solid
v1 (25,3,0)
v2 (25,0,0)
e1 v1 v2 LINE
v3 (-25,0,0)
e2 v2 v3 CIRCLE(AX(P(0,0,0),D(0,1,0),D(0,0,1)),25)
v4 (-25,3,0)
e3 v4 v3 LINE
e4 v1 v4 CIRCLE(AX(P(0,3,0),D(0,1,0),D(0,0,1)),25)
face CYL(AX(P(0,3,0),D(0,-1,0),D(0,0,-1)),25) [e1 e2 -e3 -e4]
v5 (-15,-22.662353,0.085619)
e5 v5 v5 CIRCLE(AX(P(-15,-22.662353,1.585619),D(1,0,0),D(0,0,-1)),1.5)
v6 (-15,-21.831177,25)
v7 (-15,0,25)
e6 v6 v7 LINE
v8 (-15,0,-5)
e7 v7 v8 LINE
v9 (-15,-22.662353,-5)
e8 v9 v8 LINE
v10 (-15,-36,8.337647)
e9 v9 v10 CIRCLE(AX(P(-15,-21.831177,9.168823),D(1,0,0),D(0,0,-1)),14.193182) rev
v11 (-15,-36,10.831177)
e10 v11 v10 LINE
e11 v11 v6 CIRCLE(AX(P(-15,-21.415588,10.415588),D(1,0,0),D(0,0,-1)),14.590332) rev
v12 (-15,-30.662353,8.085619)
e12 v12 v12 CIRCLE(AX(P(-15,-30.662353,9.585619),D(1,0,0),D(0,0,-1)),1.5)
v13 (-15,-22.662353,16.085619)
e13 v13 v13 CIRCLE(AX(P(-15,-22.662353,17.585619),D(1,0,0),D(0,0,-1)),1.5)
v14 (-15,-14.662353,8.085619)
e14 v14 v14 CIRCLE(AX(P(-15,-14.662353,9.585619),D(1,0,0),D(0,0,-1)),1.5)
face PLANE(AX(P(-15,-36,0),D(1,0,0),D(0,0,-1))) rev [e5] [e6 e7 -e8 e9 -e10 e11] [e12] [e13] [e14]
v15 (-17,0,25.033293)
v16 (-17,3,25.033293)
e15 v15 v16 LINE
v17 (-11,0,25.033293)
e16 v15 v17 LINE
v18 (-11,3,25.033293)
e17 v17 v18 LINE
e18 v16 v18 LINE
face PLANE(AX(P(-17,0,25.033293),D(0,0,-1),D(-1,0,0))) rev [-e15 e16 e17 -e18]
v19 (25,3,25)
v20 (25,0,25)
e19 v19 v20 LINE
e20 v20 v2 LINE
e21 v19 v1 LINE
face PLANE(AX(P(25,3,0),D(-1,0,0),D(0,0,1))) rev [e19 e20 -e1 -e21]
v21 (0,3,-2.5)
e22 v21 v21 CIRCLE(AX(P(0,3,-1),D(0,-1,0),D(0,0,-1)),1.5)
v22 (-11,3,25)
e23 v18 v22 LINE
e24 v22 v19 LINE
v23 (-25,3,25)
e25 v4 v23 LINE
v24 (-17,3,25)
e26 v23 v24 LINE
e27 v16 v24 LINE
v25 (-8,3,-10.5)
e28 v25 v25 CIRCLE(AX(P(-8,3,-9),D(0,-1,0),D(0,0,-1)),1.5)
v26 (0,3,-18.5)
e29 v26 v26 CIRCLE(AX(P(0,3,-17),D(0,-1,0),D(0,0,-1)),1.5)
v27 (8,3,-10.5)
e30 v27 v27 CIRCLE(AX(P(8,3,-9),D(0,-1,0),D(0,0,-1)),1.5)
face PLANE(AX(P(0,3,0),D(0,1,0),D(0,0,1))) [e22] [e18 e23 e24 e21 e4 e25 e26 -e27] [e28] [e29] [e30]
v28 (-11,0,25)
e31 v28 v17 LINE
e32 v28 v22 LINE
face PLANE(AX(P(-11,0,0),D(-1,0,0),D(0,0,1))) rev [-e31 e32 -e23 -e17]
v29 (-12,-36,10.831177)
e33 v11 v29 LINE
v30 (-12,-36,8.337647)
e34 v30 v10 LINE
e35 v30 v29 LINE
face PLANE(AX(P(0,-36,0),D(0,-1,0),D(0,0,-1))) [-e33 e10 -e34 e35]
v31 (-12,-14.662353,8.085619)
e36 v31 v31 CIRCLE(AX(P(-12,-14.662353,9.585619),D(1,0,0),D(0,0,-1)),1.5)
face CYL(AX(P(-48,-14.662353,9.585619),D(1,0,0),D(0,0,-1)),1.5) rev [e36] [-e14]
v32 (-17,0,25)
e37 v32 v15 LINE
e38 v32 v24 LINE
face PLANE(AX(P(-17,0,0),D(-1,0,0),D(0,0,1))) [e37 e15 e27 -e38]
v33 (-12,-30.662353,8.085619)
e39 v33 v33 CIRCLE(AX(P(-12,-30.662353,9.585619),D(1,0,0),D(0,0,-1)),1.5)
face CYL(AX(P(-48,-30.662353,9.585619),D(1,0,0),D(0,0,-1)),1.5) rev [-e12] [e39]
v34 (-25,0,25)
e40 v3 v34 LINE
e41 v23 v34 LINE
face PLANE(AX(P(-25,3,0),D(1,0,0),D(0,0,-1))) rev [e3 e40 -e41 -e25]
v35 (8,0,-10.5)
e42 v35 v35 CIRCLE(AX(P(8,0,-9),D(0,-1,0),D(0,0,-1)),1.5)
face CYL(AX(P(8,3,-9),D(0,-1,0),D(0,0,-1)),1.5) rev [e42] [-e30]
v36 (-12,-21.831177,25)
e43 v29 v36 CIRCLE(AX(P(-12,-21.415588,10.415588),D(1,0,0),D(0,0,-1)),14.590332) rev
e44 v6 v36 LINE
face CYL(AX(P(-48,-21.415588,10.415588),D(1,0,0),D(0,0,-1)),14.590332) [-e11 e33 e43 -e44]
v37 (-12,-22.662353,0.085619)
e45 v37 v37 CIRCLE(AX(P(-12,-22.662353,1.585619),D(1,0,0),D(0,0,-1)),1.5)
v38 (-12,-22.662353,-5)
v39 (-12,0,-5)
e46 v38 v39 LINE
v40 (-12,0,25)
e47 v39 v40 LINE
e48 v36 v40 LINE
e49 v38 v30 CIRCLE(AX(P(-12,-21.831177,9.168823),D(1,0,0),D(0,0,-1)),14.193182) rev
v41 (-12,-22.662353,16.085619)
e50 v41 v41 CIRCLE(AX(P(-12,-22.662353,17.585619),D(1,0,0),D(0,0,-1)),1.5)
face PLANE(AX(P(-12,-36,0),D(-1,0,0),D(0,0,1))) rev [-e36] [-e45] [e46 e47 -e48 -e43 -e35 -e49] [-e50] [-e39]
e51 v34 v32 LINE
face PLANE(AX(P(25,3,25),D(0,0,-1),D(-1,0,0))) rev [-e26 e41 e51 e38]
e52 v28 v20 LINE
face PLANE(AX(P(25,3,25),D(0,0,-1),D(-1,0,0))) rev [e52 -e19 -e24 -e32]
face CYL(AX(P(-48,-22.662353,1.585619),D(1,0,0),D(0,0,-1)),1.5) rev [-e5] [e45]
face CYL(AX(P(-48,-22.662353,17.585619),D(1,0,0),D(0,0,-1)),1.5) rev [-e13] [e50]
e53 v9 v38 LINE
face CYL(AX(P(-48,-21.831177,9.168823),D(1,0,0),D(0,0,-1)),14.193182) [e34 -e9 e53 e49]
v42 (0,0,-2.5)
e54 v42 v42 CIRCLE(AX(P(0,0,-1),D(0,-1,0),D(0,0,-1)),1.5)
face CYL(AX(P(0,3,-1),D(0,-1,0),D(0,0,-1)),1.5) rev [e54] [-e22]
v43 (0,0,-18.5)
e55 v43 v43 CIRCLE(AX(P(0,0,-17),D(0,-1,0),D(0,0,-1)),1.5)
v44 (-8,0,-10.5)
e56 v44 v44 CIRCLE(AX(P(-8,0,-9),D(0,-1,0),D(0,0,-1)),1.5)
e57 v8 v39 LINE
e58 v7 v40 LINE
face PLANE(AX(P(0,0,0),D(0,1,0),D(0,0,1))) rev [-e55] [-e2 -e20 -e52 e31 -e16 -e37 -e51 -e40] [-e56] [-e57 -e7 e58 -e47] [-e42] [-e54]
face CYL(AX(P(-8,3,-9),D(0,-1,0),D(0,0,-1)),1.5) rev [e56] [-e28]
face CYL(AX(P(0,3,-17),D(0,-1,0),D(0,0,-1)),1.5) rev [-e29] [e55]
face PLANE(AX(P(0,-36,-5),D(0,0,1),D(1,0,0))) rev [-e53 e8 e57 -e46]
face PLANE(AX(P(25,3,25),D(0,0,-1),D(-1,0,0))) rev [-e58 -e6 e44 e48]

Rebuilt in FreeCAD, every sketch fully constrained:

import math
import FreeCAD as App
import Part
import Sketcher

V = App.Vector
Q = App.Units.Quantity


def add_polygon(sketch, points):
    """Adds a closed chain of lines whose ends are joined by coincident constraints."""
    first, n = sketch.GeometryCount, len(points)
    for a, b in zip(points, points[1:] + points[:1]):
        sketch.addGeometry(Part.LineSegment(App.Vector(*a, 0), App.Vector(*b, 0)), False)
    for i in range(n):
        sketch.addConstraint(Sketcher.Constraint("Coincident", first + i, 2, first + (i + 1) % n, 1))

doc = App.newDocument("Part")
params = doc.addObject("Spreadsheet::Sheet", "Params")
for row, (alias, value) in enumerate([
    ("sketch1_radius", "25 mm"),
    ("sketch1_height", "25 mm"),
    ("pad1_length", "3 mm"),
    ("sketch2_width", "4 mm"),
    ("sketch2_height", "25 mm"),
    ("pocket1_length", "3 mm"),
    ("sketch3_diameter", "3 mm"),
    ("pocket2_length", "3 mm"),
    ("sketch4_width", "3 mm"),
    ("pad2_length", "6 mm"),
    ("sketch5_width", "3 mm"),
    ("sketch5_height", "30 mm"),
    ("pad3_length", "36 mm"),
    ("sketch6_diameter", "3 mm"),
    ("pocket3_length", "36 mm"),
    ("sketch7_width", "3 mm"),
    ("pad4_length", "6 mm"),
], start=1):
    params.set(f"A{row}", alias)
    params.set(f"B{row}", "=" + value)
    params.setAlias(f"B{row}", alias)

body = doc.addObject("PartDesign::Body", "Body")

# Sketch on XZ plane
sketch1 = body.newObject("Sketcher::SketchObject", "Sketch")
sketch1.AttachmentSupport = (doc.getObject("XZ_Plane"), [""])
sketch1.MapMode = "FlatFace"
sketch1.addGeometry([
    Part.LineSegment(V(-25, 0, 0), V(-25, 25, 0)),
    Part.LineSegment(V(-25, 25, 0), V(25, 25, 0)),
    Part.LineSegment(V(25, 25, 0), V(25, 0, 0)),
    Part.ArcOfCircle(Part.Circle(V(0, 0, 0), V(0, 0, 1), 25), math.radians(180), math.radians(360)),
], False)
sketch1.addConstraint([
    Sketcher.Constraint("Coincident", 0, 2, 1, 1),
    Sketcher.Constraint("Coincident", 1, 2, 2, 1),
    Sketcher.Constraint("Tangent", 2, 2, 3, 2),
    Sketcher.Constraint("Tangent", 3, 1, 0, 1),
    Sketcher.Constraint("Vertical", 0),
    Sketcher.Constraint("Horizontal", 1),
    Sketcher.Constraint("Vertical", 2),
    Sketcher.Constraint("Coincident", 3, 3, -1, 1),
    Sketcher.Constraint("Radius", 3, Q("25 mm")),
    Sketcher.Constraint("DistanceY", 0, 1, 0, 2, Q("25 mm")),
])
sketch1.setExpression("Constraints[8]", "Params.sketch1_radius")
sketch1.setExpression("Constraints[9]", "Params.sketch1_height")
pad1 = body.newObject("PartDesign::Pad", "Pad")
pad1.Profile = sketch1
pad1.setExpression("Length", "Params.pad1_length")
pad1.Reversed = True

# Sketch on XZ plane
sketch2 = body.newObject("Sketcher::SketchObject", "Sketch001")
sketch2.AttachmentSupport = (doc.getObject("XZ_Plane"), [""])
sketch2.MapMode = "FlatFace"
add_polygon(sketch2, [(-15, 25), (-15, 0), (-11, 0), (-11, 25)])  # lines 0-3
sketch2.addConstraint([
    Sketcher.Constraint("Vertical", 0),
    Sketcher.Constraint("Horizontal", 1),
    Sketcher.Constraint("Vertical", 2),
    Sketcher.Constraint("Horizontal", 3),
    Sketcher.Constraint("PointOnObject", 0, 2, -1),
    Sketcher.Constraint("DistanceX", 1, 1, 1, 2, Q("4 mm")),
    Sketcher.Constraint("DistanceY", 0, 2, 0, 1, Q("25 mm")),
    Sketcher.Constraint("DistanceX", 0, 2, -1, 1, Q("15 mm")),
])
sketch2.setExpression("Constraints[9]", "Params.sketch2_width")
sketch2.setExpression("Constraints[10]", "Params.sketch2_height")
pocket1 = body.newObject("PartDesign::Pocket", "Pocket")
pocket1.Profile = sketch2
pocket1.setExpression("Length", "Params.pocket1_length")

# Sketch on XZ plane
sketch3 = body.newObject("Sketcher::SketchObject", "Sketch002")
sketch3.AttachmentSupport = (doc.getObject("XZ_Plane"), [""])
sketch3.MapMode = "FlatFace"
sketch3.addGeometry([
    Part.Circle(V(8, -9, 0), V(0, 0, 1), 1.5),
    Part.Circle(V(-8, -9, 0), V(0, 0, 1), 1.5),
    Part.Circle(V(0, -17, 0), V(0, 0, 1), 1.5),
    Part.Circle(V(0, -1, 0), V(0, 0, 1), 1.5),
], False)
sketch3.addConstraint([
    Sketcher.Constraint("Equal", 0, 1),
    Sketcher.Constraint("Equal", 1, 2),
    Sketcher.Constraint("Equal", 2, 3),
    Sketcher.Constraint("Symmetric", 0, 3, 1, 3, -2),
    Sketcher.Constraint("PointOnObject", 2, 3, -2),
    Sketcher.Constraint("PointOnObject", 3, 3, -2),
    Sketcher.Constraint("Diameter", 0, Q("3 mm")),
    Sketcher.Constraint("DistanceX", -1, 1, 0, 3, Q("8 mm")),
    Sketcher.Constraint("DistanceY", 0, 3, -1, 1, Q("9 mm")),
    Sketcher.Constraint("DistanceY", 2, 3, -1, 1, Q("17 mm")),
    Sketcher.Constraint("DistanceY", 3, 3, -1, 1, Q("1 mm")),
])
sketch3.setExpression("Constraints[6]", "Params.sketch3_diameter")
pocket2 = body.newObject("PartDesign::Pocket", "Pocket001")
pocket2.Profile = sketch3
pocket2.setExpression("Length", "Params.pocket2_length")

# Sketch on YZ plane
sketch4 = body.newObject("Sketcher::SketchObject", "Sketch003")
sketch4.AttachmentSupport = (doc.getObject("YZ_Plane"), [""])
sketch4.MapMode = "FlatFace"
sketch4.AttachmentOffset = App.Placement(V(0, 0, -15), App.Rotation())
add_polygon(sketch4, [(3, 25), (0, 25), (0, -0.1), (3, -0.1)])  # lines 0-3
sketch4.addConstraint([
    Sketcher.Constraint("Horizontal", 0),
    Sketcher.Constraint("Vertical", 1),
    Sketcher.Constraint("Horizontal", 2),
    Sketcher.Constraint("Vertical", 3),
    Sketcher.Constraint("PointOnObject", 0, 2, -2),
    Sketcher.Constraint("DistanceX", 0, 2, 0, 1, Q("3 mm")),
    Sketcher.Constraint("DistanceY", -1, 1, 0, 2, Q("25 mm")),
    Sketcher.Constraint("DistanceY", 1, 2, 1, 1, Q("25.08897 mm")),
])
sketch4.setExpression("Constraints[9]", "Params.sketch4_width")
pad2 = body.newObject("PartDesign::Pad", "Pad001")
pad2.Profile = sketch4
pad2.setExpression("Length", "Params.pad2_length")

# Sketch on XZ plane
sketch5 = body.newObject("Sketcher::SketchObject", "Sketch004")
sketch5.AttachmentSupport = (doc.getObject("XZ_Plane"), [""])
sketch5.MapMode = "FlatFace"
add_polygon(sketch5, [(-15, 25), (-15, -5), (-12, -5), (-12, 25)])  # lines 0-3
sketch5.addConstraint([
    Sketcher.Constraint("Vertical", 0),
    Sketcher.Constraint("Horizontal", 1),
    Sketcher.Constraint("Vertical", 2),
    Sketcher.Constraint("Horizontal", 3),
    Sketcher.Constraint("DistanceX", 1, 1, 1, 2, Q("3 mm")),
    Sketcher.Constraint("DistanceY", 0, 2, 0, 1, Q("30 mm")),
    Sketcher.Constraint("DistanceX", 0, 2, -1, 1, Q("15 mm")),
    Sketcher.Constraint("DistanceY", 0, 2, -1, 1, Q("5 mm")),
])
sketch5.setExpression("Constraints[8]", "Params.sketch5_width")
sketch5.setExpression("Constraints[9]", "Params.sketch5_height")
pad3 = body.newObject("PartDesign::Pad", "Pad002")
pad3.Profile = sketch5
pad3.setExpression("Length", "Params.pad3_length")

# Sketch on YZ plane
sketch6 = body.newObject("Sketcher::SketchObject", "Sketch005")
sketch6.AttachmentSupport = (doc.getObject("YZ_Plane"), [""])
sketch6.MapMode = "FlatFace"
sketch6.AttachmentOffset = App.Placement(V(0, 0, -12), App.Rotation())
sketch6.addGeometry([
    Part.LineSegment(V(-36, -5, 0), V(-22.7, -5, 0)),  # 0
    Part.ArcOfCircle(Part.Circle(V(-21.8, 9.2, 0), V(0, 0, 1), 14.2), math.radians(-177), math.radians(-93)),  # 1
    Part.LineSegment(V(-36, 8.3, 0), V(-36, -5, 0)),  # 2
    Part.LineSegment(V(-36, 25, 0), V(-36, 10.8, 0)),  # 3
    Part.ArcOfCircle(Part.Circle(V(-21.4, 10.4, 0), V(0, 0, 1), 14.6), math.radians(92), math.radians(178)),  # 4
    Part.LineSegment(V(-21.8, 25, 0), V(-36, 25, 0)),  # 5
    Part.Circle(V(-30.7, 9.6, 0), V(0, 0, 1), 1.5),  # 6
    Part.Circle(V(-22.7, 1.6, 0), V(0, 0, 1), 1.5),  # 7
    Part.Circle(V(-14.7, 9.6, 0), V(0, 0, 1), 1.5),  # 8
    Part.Circle(V(-22.7, 17.6, 0), V(0, 0, 1), 1.5),  # 9
], False)
sketch6.addConstraint([
    Sketcher.Constraint("Coincident", 0, 2, 1, 2),
    Sketcher.Constraint("Coincident", 1, 1, 2, 1),
    Sketcher.Constraint("Coincident", 2, 2, 0, 1),
    Sketcher.Constraint("Coincident", 3, 2, 4, 2),
    Sketcher.Constraint("Coincident", 4, 1, 5, 1),
    Sketcher.Constraint("Coincident", 5, 2, 3, 1),
    Sketcher.Constraint("Horizontal", 0),
    Sketcher.Constraint("Vertical", 2),
    Sketcher.Constraint("Vertical", 3),
    Sketcher.Constraint("Horizontal", 5),
    Sketcher.Constraint("Equal", 6, 7),
    Sketcher.Constraint("Equal", 7, 8),
    Sketcher.Constraint("Equal", 8, 9),
    Sketcher.Constraint("Horizontal", 6, 3, 8, 3),
    Sketcher.Constraint("Vertical", 7, 3, 9, 3),
    Sketcher.Constraint("Vertical", 9, 3, 0, 2),
    Sketcher.Constraint("Vertical", 2, 2, 3, 2),
    Sketcher.Constraint("Vertical", 1, 3, 4, 1),
    Sketcher.Constraint("Equal", 0, 2),
    Sketcher.Constraint("Equal", 5, 3),
    Sketcher.Constraint("Diameter", 6, Q("3 mm")),
    Sketcher.Constraint("DistanceY", 0, 2, -1, 1, Q("5 mm")),
    Sketcher.Constraint("DistanceX", 1, 1, -1, 1, Q("36 mm")),
    Sketcher.Constraint("DistanceY", -1, 1, 4, 1, Q("25 mm")),
    Sketcher.Constraint("DistanceX", 6, 3, 7, 3, Q("8 mm")),
    Sketcher.Constraint("DistanceY", 7, 3, 6, 3, Q("8 mm")),
    Sketcher.Constraint("DistanceX", 7, 3, 8, 3, Q("8 mm")),
    Sketcher.Constraint("DistanceY", 6, 3, 9, 3, Q("8 mm")),
    Sketcher.Constraint("Radius", 1, Q("14.193182 mm")),
    Sketcher.Constraint("Radius", 4, Q("14.590332 mm")),
    Sketcher.Constraint("DistanceX", 0, 1, 0, 2, Q("13.337647 mm")),
    Sketcher.Constraint("DistanceY", -1, 1, 6, 3, Q("9.585619 mm")),
])
sketch6.setExpression("Constraints[20]", "Params.sketch6_diameter")
pocket3 = body.newObject("PartDesign::Pocket", "Pocket002")
pocket3.Profile = sketch6
pocket3.setExpression("Length", "Params.pocket3_length")

# Sketch on YZ plane
sketch7 = body.newObject("Sketcher::SketchObject", "Sketch006")
sketch7.AttachmentSupport = (doc.getObject("YZ_Plane"), [""])
sketch7.MapMode = "FlatFace"
sketch7.AttachmentOffset = App.Placement(V(0, 0, -11), App.Rotation())
add_polygon(sketch7, [(3, 0), (0, 0), (0, 25), (3, 25)])  # lines 0-3
sketch7.addConstraint([
    Sketcher.Constraint("Horizontal", 0),
    Sketcher.Constraint("Vertical", 1),
    Sketcher.Constraint("Horizontal", 2),
    Sketcher.Constraint("Vertical", 3),
    Sketcher.Constraint("Coincident", 0, 2, -1, 1),
    Sketcher.Constraint("DistanceX", 0, 2, 0, 1, Q("3 mm")),
    Sketcher.Constraint("DistanceY", 1, 1, 1, 2, Q("25.033293 mm")),
])
sketch7.setExpression("Constraints[9]", "Params.sketch7_width")
pad4 = body.newObject("PartDesign::Pad", "Pad003")
pad4.Profile = sketch7
pad4.setExpression("Length", "Params.pad4_length")
pad4.Reversed = True

doc.recompute()
